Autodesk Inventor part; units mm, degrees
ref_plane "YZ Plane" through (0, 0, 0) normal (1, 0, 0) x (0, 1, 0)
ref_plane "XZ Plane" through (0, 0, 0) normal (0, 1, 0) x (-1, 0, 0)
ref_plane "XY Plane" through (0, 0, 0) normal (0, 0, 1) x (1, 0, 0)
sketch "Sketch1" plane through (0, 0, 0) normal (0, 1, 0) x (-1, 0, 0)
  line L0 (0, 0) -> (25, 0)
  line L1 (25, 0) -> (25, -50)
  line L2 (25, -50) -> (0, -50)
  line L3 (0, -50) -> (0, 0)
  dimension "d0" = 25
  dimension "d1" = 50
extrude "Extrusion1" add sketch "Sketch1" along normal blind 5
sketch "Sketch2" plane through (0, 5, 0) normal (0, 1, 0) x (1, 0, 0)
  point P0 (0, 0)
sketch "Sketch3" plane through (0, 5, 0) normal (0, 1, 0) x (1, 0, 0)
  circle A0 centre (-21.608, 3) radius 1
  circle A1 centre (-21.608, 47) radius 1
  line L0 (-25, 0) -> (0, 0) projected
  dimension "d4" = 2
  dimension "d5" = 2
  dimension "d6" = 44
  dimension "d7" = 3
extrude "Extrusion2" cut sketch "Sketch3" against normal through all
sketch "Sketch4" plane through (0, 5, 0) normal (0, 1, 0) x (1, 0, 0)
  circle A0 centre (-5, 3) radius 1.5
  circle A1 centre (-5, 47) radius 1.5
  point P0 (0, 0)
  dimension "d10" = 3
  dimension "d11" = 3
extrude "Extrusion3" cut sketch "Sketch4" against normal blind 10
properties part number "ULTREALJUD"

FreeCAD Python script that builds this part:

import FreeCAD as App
import Part
import Sketcher

V = App.Vector
Q = App.Units.Quantity

doc = App.newDocument("Part")
body = doc.addObject("PartDesign::Body", "Body")

# Sketch on XZ plane
sketch1 = doc.addObject("Sketcher::SketchObject", "Sketch")
body.addObject(sketch1)
sketch1.AttachmentSupport = (doc.XZ_Plane, [""])
sketch1.MapMode = "FlatFace"
sketch1.addGeometry([
    Part.LineSegment(V(-25, 0, 0), V(0, 0, 0)),
    Part.LineSegment(V(0, 0, 0), V(0, -50, 0)),
    Part.LineSegment(V(0, -50, 0), V(-25, -50, 0)),
    Part.LineSegment(V(-25, -50, 0), V(-25, 0, 0)),
], False)
sketch1.addConstraint([
    Sketcher.Constraint("Coincident", 0, 2, 1, 1),
    Sketcher.Constraint("Coincident", 1, 2, 2, 1),
    Sketcher.Constraint("Coincident", 2, 2, 3, 1),
    Sketcher.Constraint("Coincident", 3, 2, 0, 1),
    Sketcher.Constraint("Horizontal", 0),
    Sketcher.Constraint("Vertical", 1),
    Sketcher.Constraint("Horizontal", 2),
    Sketcher.Constraint("Vertical", 3),
    Sketcher.Constraint("Coincident", 0, 2, -1, 1),
    Sketcher.Constraint("DistanceX", 0, 1, 0, 2, Q("25 mm")),
    Sketcher.Constraint("DistanceY", 1, 2, 1, 1, Q("50 mm")),
])
pad1 = doc.addObject("PartDesign::Pad", "Pad")
body.addObject(pad1)
pad1.Profile = sketch1
pad1.Length = 5
pad1.Reversed = True

# Sketch on XZ plane
sketch2 = doc.addObject("Sketcher::SketchObject", "Sketch001")
body.addObject(sketch2)
sketch2.AttachmentSupport = (doc.XZ_Plane, [""])
sketch2.MapMode = "FlatFace"
sketch2.AttachmentOffset = App.Placement(V(0, 0, -5), App.Rotation())
sketch2.addGeometry([
    Part.Circle(V(-21.608, -3, 0), V(0, 0, 1), 1),
    Part.Circle(V(-21.608, -47, 0), V(0, 0, 1), 1),
], False)
sketch2.addConstraint([
    Sketcher.Constraint("Equal", 0, 1),
    Sketcher.Constraint("Vertical", 0, 3, 1, 3),
    Sketcher.Constraint("Diameter", 0, Q("2 mm")),
    Sketcher.Constraint("DistanceY", 0, 3, -1, 1, Q("3 mm")),
    Sketcher.Constraint("DistanceY", 1, 3, 0, 3, Q("44 mm")),
    Sketcher.Constraint("DistanceX", 0, 3, -1, 1, Q("21.608 mm")),
])
pocket1 = doc.addObject("PartDesign::Pocket", "Pocket")
body.addObject(pocket1)
pocket1.Profile = sketch2
pocket1.Type = "ThroughAll"
pocket1.Reversed = True

# Sketch on XZ plane
sketch3 = doc.addObject("Sketcher::SketchObject", "Sketch002")
body.addObject(sketch3)
sketch3.AttachmentSupport = (doc.XZ_Plane, [""])
sketch3.MapMode = "FlatFace"
sketch3.AttachmentOffset = App.Placement(V(0, 0, -5), App.Rotation())
sketch3.addGeometry([
    Part.Circle(V(-5, -3, 0), V(0, 0, 1), 1.5),
    Part.Circle(V(-5, -47, 0), V(0, 0, 1), 1.5),
], False)
sketch3.addConstraint([
    Sketcher.Constraint("Equal", 0, 1),
    Sketcher.Constraint("Vertical", 0, 3, 1, 3),
    Sketcher.Constraint("Diameter", 0, Q("3 mm")),
    Sketcher.Constraint("DistanceY", 0, 3, -1, 1, Q("3 mm")),
    Sketcher.Constraint("DistanceX", 0, 3, -1, 1, Q("5 mm")),
    Sketcher.Constraint("DistanceY", 1, 3, -1, 1, Q("47 mm")),
])
pocket2 = doc.addObject("PartDesign::Pocket", "Pocket001")
body.addObject(pocket2)
pocket2.Profile = sketch3
pocket2.Length = 10
pocket2.Reversed = True

doc.recompute()
